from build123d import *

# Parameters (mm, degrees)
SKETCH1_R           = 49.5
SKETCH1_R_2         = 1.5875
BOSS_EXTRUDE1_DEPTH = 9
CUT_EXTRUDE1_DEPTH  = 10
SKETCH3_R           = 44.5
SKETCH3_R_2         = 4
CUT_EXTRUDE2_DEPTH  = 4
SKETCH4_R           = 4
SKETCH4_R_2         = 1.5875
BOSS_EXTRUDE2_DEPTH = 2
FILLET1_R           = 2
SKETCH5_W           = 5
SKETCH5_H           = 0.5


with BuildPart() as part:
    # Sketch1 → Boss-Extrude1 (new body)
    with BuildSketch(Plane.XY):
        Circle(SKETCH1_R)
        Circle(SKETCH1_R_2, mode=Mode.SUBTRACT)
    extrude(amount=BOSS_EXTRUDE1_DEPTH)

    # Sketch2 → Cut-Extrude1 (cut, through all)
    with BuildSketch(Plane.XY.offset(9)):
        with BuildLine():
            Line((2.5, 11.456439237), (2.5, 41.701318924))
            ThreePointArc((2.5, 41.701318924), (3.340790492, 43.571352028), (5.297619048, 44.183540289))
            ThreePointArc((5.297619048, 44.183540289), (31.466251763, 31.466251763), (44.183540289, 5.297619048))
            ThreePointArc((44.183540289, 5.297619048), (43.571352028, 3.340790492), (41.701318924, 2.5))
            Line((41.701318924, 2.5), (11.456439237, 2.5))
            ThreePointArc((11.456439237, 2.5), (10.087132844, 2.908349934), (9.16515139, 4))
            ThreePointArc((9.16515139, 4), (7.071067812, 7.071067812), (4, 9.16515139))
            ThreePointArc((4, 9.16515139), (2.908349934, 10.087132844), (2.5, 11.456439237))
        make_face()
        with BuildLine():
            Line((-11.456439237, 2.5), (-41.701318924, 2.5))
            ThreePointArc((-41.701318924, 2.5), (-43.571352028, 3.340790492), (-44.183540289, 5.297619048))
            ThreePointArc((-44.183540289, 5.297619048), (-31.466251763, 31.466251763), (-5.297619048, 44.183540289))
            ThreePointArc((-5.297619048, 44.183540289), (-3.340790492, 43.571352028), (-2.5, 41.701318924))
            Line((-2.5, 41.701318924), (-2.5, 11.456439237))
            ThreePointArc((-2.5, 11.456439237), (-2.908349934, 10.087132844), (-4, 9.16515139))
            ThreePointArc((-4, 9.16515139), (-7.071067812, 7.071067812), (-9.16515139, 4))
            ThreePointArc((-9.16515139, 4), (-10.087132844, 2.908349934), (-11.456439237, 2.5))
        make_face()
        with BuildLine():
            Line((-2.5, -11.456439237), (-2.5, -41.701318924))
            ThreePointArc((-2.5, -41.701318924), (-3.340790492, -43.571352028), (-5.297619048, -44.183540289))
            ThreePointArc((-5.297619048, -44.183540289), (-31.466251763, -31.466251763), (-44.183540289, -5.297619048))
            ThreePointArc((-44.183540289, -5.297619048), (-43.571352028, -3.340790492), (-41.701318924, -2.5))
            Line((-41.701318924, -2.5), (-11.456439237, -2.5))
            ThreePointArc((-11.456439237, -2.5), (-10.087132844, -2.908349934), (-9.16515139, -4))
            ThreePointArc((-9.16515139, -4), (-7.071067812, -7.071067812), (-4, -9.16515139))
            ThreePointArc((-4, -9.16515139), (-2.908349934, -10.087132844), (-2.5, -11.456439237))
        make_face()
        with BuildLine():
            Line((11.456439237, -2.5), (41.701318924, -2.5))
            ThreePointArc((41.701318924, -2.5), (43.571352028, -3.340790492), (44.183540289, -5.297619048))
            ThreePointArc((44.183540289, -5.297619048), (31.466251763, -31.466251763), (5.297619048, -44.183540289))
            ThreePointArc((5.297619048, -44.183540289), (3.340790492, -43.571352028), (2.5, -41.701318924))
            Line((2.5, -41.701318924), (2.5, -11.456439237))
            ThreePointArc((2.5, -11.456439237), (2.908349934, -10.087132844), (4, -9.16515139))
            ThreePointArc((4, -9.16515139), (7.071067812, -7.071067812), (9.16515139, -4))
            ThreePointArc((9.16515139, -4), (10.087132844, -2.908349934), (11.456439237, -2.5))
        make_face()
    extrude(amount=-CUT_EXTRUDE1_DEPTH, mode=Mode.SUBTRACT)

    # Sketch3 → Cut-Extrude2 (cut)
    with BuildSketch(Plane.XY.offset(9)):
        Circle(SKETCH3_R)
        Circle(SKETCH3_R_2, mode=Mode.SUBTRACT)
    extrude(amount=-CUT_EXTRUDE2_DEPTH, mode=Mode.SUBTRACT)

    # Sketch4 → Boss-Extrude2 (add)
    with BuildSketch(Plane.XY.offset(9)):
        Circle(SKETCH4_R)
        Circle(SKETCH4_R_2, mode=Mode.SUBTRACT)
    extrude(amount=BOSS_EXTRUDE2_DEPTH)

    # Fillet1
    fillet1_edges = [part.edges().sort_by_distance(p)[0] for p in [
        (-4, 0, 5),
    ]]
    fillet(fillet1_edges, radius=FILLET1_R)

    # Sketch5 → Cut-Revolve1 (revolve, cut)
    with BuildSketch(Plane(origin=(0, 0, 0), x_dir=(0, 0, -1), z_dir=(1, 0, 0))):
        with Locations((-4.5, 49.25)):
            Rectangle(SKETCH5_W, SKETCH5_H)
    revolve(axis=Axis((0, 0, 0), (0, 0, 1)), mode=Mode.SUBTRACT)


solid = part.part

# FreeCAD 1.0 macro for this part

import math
import FreeCAD as App
import Part
import Sketcher

V = App.Vector


def edges_at(feature, points):
    """Names of the edges that pass closest to the given points."""
    edges = feature.Shape.Edges
    near = lambda p: min(range(len(edges)), key=lambda i: edges[i].distToShape(Part.Vertex(*p))[0])
    return sorted({f"Edge{near(p) + 1}" for p in points})


def add_polygon(sketch, points):
    """Adds a closed chain of lines whose ends are joined by coincident constraints."""
    first, n = sketch.GeometryCount, len(points)
    for a, b in zip(points, points[1:] + points[:1]):
        sketch.addGeometry(Part.LineSegment(App.Vector(*a, 0), App.Vector(*b, 0)), False)
    for i in range(n):
        sketch.addConstraint(Sketcher.Constraint("Coincident", first + i, 2, first + (i + 1) % n, 1))

doc = App.newDocument("Part")
body = doc.addObject("PartDesign::Body", "Body")

sketch1 = body.newObject("Sketcher::SketchObject", "Sketch")
sketch1.AttachmentSupport = (doc.getObject("XY_Plane"), [""])
sketch1.MapMode = "FlatFace"
sketch1.addGeometry(Part.Circle(V(0, 0, 0), V(0, 0, 1), 49.5), False)
sketch1.addGeometry(Part.Circle(V(0, 0, 0), V(0, 0, 1), 1.6), False)
sketch1.addConstraint(Sketcher.Constraint("Coincident", 0, 3, -1, 1))
sketch1.addConstraint(Sketcher.Constraint("Coincident", 1, 3, -1, 1))
sketch1.addConstraint(Sketcher.Constraint("Diameter", 0, 99.0))
sketch1.addConstraint(Sketcher.Constraint("Diameter", 1, 3.175))
pad1 = body.newObject("PartDesign::Pad", "Pad")
pad1.Profile = sketch1
pad1.Length = 9

sketch2 = body.newObject("Sketcher::SketchObject", "Sketch001")
sketch2.AttachmentSupport = (doc.getObject("XY_Plane"), [""])
sketch2.MapMode = "FlatFace"
sketch2.AttachmentOffset = App.Placement(V(0, 0, 9), App.Rotation())
sketch2.addGeometry(Part.LineSegment(V(2.5, 41.7, 0), V(2.5, 11.5, 0)), False)
sketch2.addGeometry(Part.ArcOfCircle(Part.Circle(V(5, 11.5, 0), V(0, 0, 1), 2.5), math.radians(-180), math.radians(-114)), False)
sketch2.addGeometry(Part.ArcOfCircle(Part.Circle(V(0, 0, 0), V(0, 0, 1), 10), math.radians(24), math.radians(66)), False)
sketch2.addGeometry(Part.ArcOfCircle(Part.Circle(V(11.5, 5, 0), V(0, 0, 1), 2.5), math.radians(-156), math.radians(-90)), False)
sketch2.addGeometry(Part.LineSegment(V(11.5, 2.5, 0), V(41.7, 2.5, 0)), False)
sketch2.addGeometry(Part.ArcOfCircle(Part.Circle(V(41.7, 5, 0), V(0, 0, 1), 2.5), math.radians(-90), math.radians(7)), False)
sketch2.addGeometry(Part.ArcOfCircle(Part.Circle(V(0, 0, 0), V(0, 0, 1), 44.5), math.radians(7), math.radians(83)), False)
sketch2.addGeometry(Part.ArcOfCircle(Part.Circle(V(5, 41.7, 0), V(0, 0, 1), 2.5), math.radians(83), math.radians(180)), False)
sketch2.addGeometry(Part.LineSegment(V(-41.7, 2.5, 0), V(-11.5, 2.5, 0)), False)
sketch2.addGeometry(Part.ArcOfCircle(Part.Circle(V(-11.5, 5, 0), V(0, 0, 1), 2.5), math.radians(-90), math.radians(-24)), False)
sketch2.addGeometry(Part.ArcOfCircle(Part.Circle(V(0, 0, 0), V(0, 0, 1), 10), math.radians(114), math.radians(156)), False)
sketch2.addGeometry(Part.ArcOfCircle(Part.Circle(V(-5, 11.5, 0), V(0, 0, 1), 2.5), math.radians(-66), math.radians(0)), False)
sketch2.addGeometry(Part.LineSegment(V(-2.5, 11.5, 0), V(-2.5, 41.7, 0)), False)
sketch2.addGeometry(Part.ArcOfCircle(Part.Circle(V(-5, 41.7, 0), V(0, 0, 1), 2.5), math.radians(0), math.radians(97)), False)
sketch2.addGeometry(Part.ArcOfCircle(Part.Circle(V(0, 0, 0), V(0, 0, 1), 44.5), math.radians(97), math.radians(173)), False)
sketch2.addGeometry(Part.ArcOfCircle(Part.Circle(V(-41.7, 5, 0), V(0, 0, 1), 2.5), math.radians(173), math.radians(270)), False)
sketch2.addGeometry(Part.LineSegment(V(-2.5, -41.7, 0), V(-2.5, -11.5, 0)), False)
sketch2.addGeometry(Part.ArcOfCircle(Part.Circle(V(-5, -11.5, 0), V(0, 0, 1), 2.5), math.radians(0), math.radians(66)), False)
sketch2.addGeometry(Part.ArcOfCircle(Part.Circle(V(0, 0, 0), V(0, 0, 1), 10), math.radians(-156), math.radians(-114)), False)
sketch2.addGeometry(Part.ArcOfCircle(Part.Circle(V(-11.5, -5, 0), V(0, 0, 1), 2.5), math.radians(24), math.radians(90)), False)
sketch2.addGeometry(Part.LineSegment(V(-11.5, -2.5, 0), V(-41.7, -2.5, 0)), False)
sketch2.addGeometry(Part.ArcOfCircle(Part.Circle(V(-41.7, -5, 0), V(0, 0, 1), 2.5), math.radians(90), math.radians(187)), False)
sketch2.addGeometry(Part.ArcOfCircle(Part.Circle(V(0, 0, 0), V(0, 0, 1), 44.5), math.radians(-173), math.radians(-97)), False)
sketch2.addGeometry(Part.ArcOfCircle(Part.Circle(V(-5, -41.7, 0), V(0, 0, 1), 2.5), math.radians(-97), math.radians(0)), False)
sketch2.addGeometry(Part.LineSegment(V(41.7, -2.5, 0), V(11.5, -2.5, 0)), False)
sketch2.addGeometry(Part.ArcOfCircle(Part.Circle(V(11.5, -5, 0), V(0, 0, 1), 2.5), math.radians(90), math.radians(156)), False)
sketch2.addGeometry(Part.ArcOfCircle(Part.Circle(V(0, 0, 0), V(0, 0, 1), 10), math.radians(-66), math.radians(-24)), False)
sketch2.addGeometry(Part.ArcOfCircle(Part.Circle(V(5, -11.5, 0), V(0, 0, 1), 2.5), math.radians(114), math.radians(180)), False)
sketch2.addGeometry(Part.LineSegment(V(2.5, -11.5, 0), V(2.5, -41.7, 0)), False)
sketch2.addGeometry(Part.ArcOfCircle(Part.Circle(V(5, -41.7, 0), V(0, 0, 1), 2.5), math.radians(180), math.radians(277)), False)
sketch2.addGeometry(Part.ArcOfCircle(Part.Circle(V(0, 0, 0), V(0, 0, 1), 44.5), math.radians(-83), math.radians(-7)), False)
sketch2.addGeometry(Part.ArcOfCircle(Part.Circle(V(41.7, -5, 0), V(0, 0, 1), 2.5), math.radians(-7), math.radians(90)), False)
sketch2.addConstraint(Sketcher.Constraint("Tangent", 0, 2, 1, 1))
sketch2.addConstraint(Sketcher.Constraint("Tangent", 1, 2, 2, 2))
sketch2.addConstraint(Sketcher.Constraint("Tangent", 2, 1, 3, 1))
sketch2.addConstraint(Sketcher.Constraint("Tangent", 3, 2, 4, 1))
sketch2.addConstraint(Sketcher.Constraint("Tangent", 4, 2, 5, 1))
sketch2.addConstraint(Sketcher.Constraint("Tangent", 5, 2, 6, 1))
sketch2.addConstraint(Sketcher.Constraint("Tangent", 6, 2, 7, 1))
sketch2.addConstraint(Sketcher.Constraint("Tangent", 7, 2, 0, 1))
sketch2.addConstraint(Sketcher.Constraint("Tangent", 8, 2, 9, 1))
sketch2.addConstraint(Sketcher.Constraint("Tangent", 9, 2, 10, 2))
sketch2.addConstraint(Sketcher.Constraint("Tangent", 10, 1, 11, 1))
sketch2.addConstraint(Sketcher.Constraint("Tangent", 11, 2, 12, 1))
sketch2.addConstraint(Sketcher.Constraint("Tangent", 12, 2, 13, 1))
sketch2.addConstraint(Sketcher.Constraint("Tangent", 13, 2, 14, 1))
sketch2.addConstraint(Sketcher.Constraint("Tangent", 14, 2, 15, 1))
sketch2.addConstraint(Sketcher.Constraint("Tangent", 15, 2, 8, 1))
sketch2.addConstraint(Sketcher.Constraint("Tangent", 16, 2, 17, 1))
sketch2.addConstraint(Sketcher.Constraint("Tangent", 17, 2, 18, 2))
sketch2.addConstraint(Sketcher.Constraint("Tangent", 18, 1, 19, 1))
sketch2.addConstraint(Sketcher.Constraint("Tangent", 19, 2, 20, 1))
sketch2.addConstraint(Sketcher.Constraint("Tangent", 20, 2, 21, 1))
sketch2.addConstraint(Sketcher.Constraint("Tangent", 21, 2, 22, 1))
sketch2.addConstraint(Sketcher.Constraint("Tangent", 22, 2, 23, 1))
sketch2.addConstraint(Sketcher.Constraint("Tangent", 23, 2, 16, 1))
sketch2.addConstraint(Sketcher.Constraint("Tangent", 24, 2, 25, 1))
sketch2.addConstraint(Sketcher.Constraint("Tangent", 25, 2, 26, 2))
sketch2.addConstraint(Sketcher.Constraint("Tangent", 26, 1, 27, 1))
sketch2.addConstraint(Sketcher.Constraint("Tangent", 27, 2, 28, 1))
sketch2.addConstraint(Sketcher.Constraint("Tangent", 28, 2, 29, 1))
sketch2.addConstraint(Sketcher.Constraint("Tangent", 29, 2, 30, 1))
sketch2.addConstraint(Sketcher.Constraint("Tangent", 30, 2, 31, 1))
sketch2.addConstraint(Sketcher.Constraint("Tangent", 31, 2, 24, 1))
sketch2.addConstraint(Sketcher.Constraint("Vertical", 0))
sketch2.addConstraint(Sketcher.Constraint("Horizontal", 4))
sketch2.addConstraint(Sketcher.Constraint("Horizontal", 8))
sketch2.addConstraint(Sketcher.Constraint("Vertical", 12))
sketch2.addConstraint(Sketcher.Constraint("Vertical", 16))
sketch2.addConstraint(Sketcher.Constraint("Horizontal", 20))
sketch2.addConstraint(Sketcher.Constraint("Horizontal", 24))
sketch2.addConstraint(Sketcher.Constraint("Vertical", 28))
sketch2.addConstraint(Sketcher.Constraint("Coincident", 2, 3, -1, 1))
sketch2.addConstraint(Sketcher.Constraint("Coincident", 6, 3, -1, 1))
sketch2.addConstraint(Sketcher.Constraint("Coincident", 10, 3, -1, 1))
sketch2.addConstraint(Sketcher.Constraint("Coincident", 14, 3, -1, 1))
sketch2.addConstraint(Sketcher.Constraint("Coincident", 18, 3, -1, 1))
sketch2.addConstraint(Sketcher.Constraint("Coincident", 22, 3, -1, 1))
sketch2.addConstraint(Sketcher.Constraint("Coincident", 26, 3, -1, 1))
sketch2.addConstraint(Sketcher.Constraint("Coincident", 30, 3, -1, 1))
sketch2.addConstraint(Sketcher.Constraint("Equal", 1, 3))
sketch2.addConstraint(Sketcher.Constraint("Equal", 3, 5))
sketch2.addConstraint(Sketcher.Constraint("Equal", 5, 7))
sketch2.addConstraint(Sketcher.Constraint("Equal", 7, 9))
sketch2.addConstraint(Sketcher.Constraint("Equal", 2, 10))
sketch2.addConstraint(Sketcher.Constraint("Equal", 9, 11))
sketch2.addConstraint(Sketcher.Constraint("Equal", 11, 13))
sketch2.addConstraint(Sketcher.Constraint("Equal", 6, 14))
sketch2.addConstraint(Sketcher.Constraint("Equal", 13, 15))
sketch2.addConstraint(Sketcher.Constraint("Equal", 15, 17))
sketch2.addConstraint(Sketcher.Constraint("Equal", 10, 18))
sketch2.addConstraint(Sketcher.Constraint("Equal", 17, 19))
sketch2.addConstraint(Sketcher.Constraint("Equal", 19, 21))
sketch2.addConstraint(Sketcher.Constraint("Equal", 14, 22))
sketch2.addConstraint(Sketcher.Constraint("Equal", 21, 23))
sketch2.addConstraint(Sketcher.Constraint("Equal", 23, 25))
sketch2.addConstraint(Sketcher.Constraint("Equal", 18, 26))
sketch2.addConstraint(Sketcher.Constraint("Equal", 25, 27))
sketch2.addConstraint(Sketcher.Constraint("Equal", 27, 29))
sketch2.addConstraint(Sketcher.Constraint("Equal", 22, 30))
sketch2.addConstraint(Sketcher.Constraint("Equal", 29, 31))
sketch2.addConstraint(Sketcher.Constraint("Horizontal", 5, 3, 9, 3))
sketch2.addConstraint(Sketcher.Constraint("Horizontal", 1, 3, 11, 3))
sketch2.addConstraint(Sketcher.Constraint("Horizontal", 21, 3, 25, 3))
sketch2.addConstraint(Sketcher.Constraint("Horizontal", 17, 3, 27, 3))
sketch2.addConstraint(Sketcher.Constraint("Vertical", 13, 3, 17, 3))
sketch2.addConstraint(Sketcher.Constraint("Vertical", 9, 3, 19, 3))
sketch2.addConstraint(Sketcher.Constraint("Equal", 24, 0))
sketch2.addConstraint(Sketcher.Constraint("Radius", 2, 10.0))
sketch2.addConstraint(Sketcher.Constraint("Radius", 1, 2.5))
sketch2.addConstraint(Sketcher.Constraint("Radius", 6, 44.5))
sketch2.addConstraint(Sketcher.Constraint("DistanceX", -1, 1, 1, 3, 5.0))
pocket1 = body.newObject("PartDesign::Pocket", "Pocket")
pocket1.Profile = sketch2
pocket1.Type = "ThroughAll"

sketch3 = body.newObject("Sketcher::SketchObject", "Sketch002")
sketch3.AttachmentSupport = (doc.getObject("XY_Plane"), [""])
sketch3.MapMode = "FlatFace"
sketch3.AttachmentOffset = App.Placement(V(0, 0, 9), App.Rotation())
sketch3.addGeometry(Part.Circle(V(0, 0, 0), V(0, 0, 1), 44.5), False)
sketch3.addGeometry(Part.Circle(V(0, 0, 0), V(0, 0, 1), 4), False)
sketch3.addConstraint(Sketcher.Constraint("Coincident", 0, 3, -1, 1))
sketch3.addConstraint(Sketcher.Constraint("Coincident", 1, 3, -1, 1))
sketch3.addConstraint(Sketcher.Constraint("Diameter", 0, 89.0))
sketch3.addConstraint(Sketcher.Constraint("Diameter", 1, 8.0))
pocket2 = body.newObject("PartDesign::Pocket", "Pocket001")
pocket2.Profile = sketch3
pocket2.Length = 4

sketch4 = body.newObject("Sketcher::SketchObject", "Sketch003")
sketch4.AttachmentSupport = (doc.getObject("XY_Plane"), [""])
sketch4.MapMode = "FlatFace"
sketch4.AttachmentOffset = App.Placement(V(0, 0, 9), App.Rotation())
sketch4.addGeometry(Part.Circle(V(0, 0, 0), V(0, 0, 1), 4), False)
sketch4.addGeometry(Part.Circle(V(0, 0, 0), V(0, 0, 1), 1.6), False)
sketch4.addConstraint(Sketcher.Constraint("Coincident", 0, 3, -1, 1))
sketch4.addConstraint(Sketcher.Constraint("Coincident", 1, 3, -1, 1))
sketch4.addConstraint(Sketcher.Constraint("Diameter", 0, 8.0))
sketch4.addConstraint(Sketcher.Constraint("Diameter", 1, 3.175))
pad2 = body.newObject("PartDesign::Pad", "Pad001")
pad2.Profile = sketch4
pad2.Length = 2
doc.recompute()

fillet = body.newObject("PartDesign::Fillet", "Fillet")
fillet.Base = (pad2, edges_at(pad2, [(-4, 0, 5)]))
fillet.Radius = 2

sketch5 = body.newObject("Sketcher::SketchObject", "Sketch004")
sketch5.AttachmentSupport = (doc.getObject("YZ_Plane"), [""])
sketch5.MapMode = "FlatFace"
add_polygon(sketch5, [(49.5, 7), (49, 7), (49, 2), (49.5, 2)])
sketch5.addConstraint(Sketcher.Constraint("Horizontal", 0))
sketch5.addConstraint(Sketcher.Constraint("Vertical", 1))
sketch5.addConstraint(Sketcher.Constraint("Horizontal", 2))
sketch5.addConstraint(Sketcher.Constraint("Vertical", 3))
sketch5.addConstraint(Sketcher.Constraint("DistanceY", 1, 2, 1, 1, 5.0))
sketch5.addConstraint(Sketcher.Constraint("DistanceX", 0, 2, 0, 1, 0.5))
sketch5.addConstraint(Sketcher.Constraint("DistanceX", -1, 1, 0, 2, 49.0))
sketch5.addConstraint(Sketcher.Constraint("DistanceY", -1, 1, 0, 2, 7.0))
groove = body.newObject("PartDesign::Groove", "Groove")
groove.Profile = sketch5
groove.ReferenceAxis = (sketch5, ["V_Axis"])
groove.Angle = 360

doc.recompute()
